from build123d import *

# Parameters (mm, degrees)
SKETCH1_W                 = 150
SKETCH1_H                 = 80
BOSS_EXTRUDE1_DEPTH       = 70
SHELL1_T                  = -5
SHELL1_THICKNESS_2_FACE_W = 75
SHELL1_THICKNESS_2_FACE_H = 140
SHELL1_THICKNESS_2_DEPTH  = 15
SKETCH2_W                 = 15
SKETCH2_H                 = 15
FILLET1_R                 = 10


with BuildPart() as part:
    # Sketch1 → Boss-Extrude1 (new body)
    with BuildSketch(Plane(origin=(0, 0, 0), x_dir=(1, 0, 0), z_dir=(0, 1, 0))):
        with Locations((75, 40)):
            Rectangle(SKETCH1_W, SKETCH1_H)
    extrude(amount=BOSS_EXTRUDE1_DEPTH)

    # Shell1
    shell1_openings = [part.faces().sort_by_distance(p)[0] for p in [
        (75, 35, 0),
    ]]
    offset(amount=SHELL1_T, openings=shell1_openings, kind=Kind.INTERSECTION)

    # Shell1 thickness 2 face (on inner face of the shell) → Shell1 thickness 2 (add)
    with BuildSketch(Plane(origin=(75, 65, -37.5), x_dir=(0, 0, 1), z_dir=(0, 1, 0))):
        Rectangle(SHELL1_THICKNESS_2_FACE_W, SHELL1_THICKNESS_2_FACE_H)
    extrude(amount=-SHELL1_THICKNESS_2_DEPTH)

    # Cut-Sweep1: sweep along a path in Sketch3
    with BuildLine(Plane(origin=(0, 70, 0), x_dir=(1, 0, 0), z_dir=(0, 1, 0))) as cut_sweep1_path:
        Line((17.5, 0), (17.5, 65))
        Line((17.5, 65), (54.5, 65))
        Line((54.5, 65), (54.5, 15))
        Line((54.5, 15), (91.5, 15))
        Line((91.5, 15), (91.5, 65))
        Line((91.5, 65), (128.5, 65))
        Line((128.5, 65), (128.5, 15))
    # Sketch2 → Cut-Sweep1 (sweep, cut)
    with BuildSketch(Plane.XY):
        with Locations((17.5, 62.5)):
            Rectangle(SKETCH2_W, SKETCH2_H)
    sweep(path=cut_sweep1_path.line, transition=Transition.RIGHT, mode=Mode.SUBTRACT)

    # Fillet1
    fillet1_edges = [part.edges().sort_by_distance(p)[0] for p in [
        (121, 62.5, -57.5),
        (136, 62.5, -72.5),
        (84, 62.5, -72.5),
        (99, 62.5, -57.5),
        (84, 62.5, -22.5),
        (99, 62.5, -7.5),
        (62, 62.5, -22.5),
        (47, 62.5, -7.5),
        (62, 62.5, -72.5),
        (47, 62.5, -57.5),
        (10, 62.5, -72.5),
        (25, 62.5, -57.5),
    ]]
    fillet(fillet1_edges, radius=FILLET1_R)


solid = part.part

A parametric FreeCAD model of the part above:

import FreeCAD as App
import Part
import Sketcher

V = App.Vector


def edges_at(feature, points):
    """Names of the edges that pass closest to the given points."""
    edges = feature.Shape.Edges
    near = lambda p: min(range(len(edges)), key=lambda i: edges[i].distToShape(Part.Vertex(*p))[0])
    return sorted({f"Edge{near(p) + 1}" for p in points})


def faces_at(feature, points):
    """Names of the faces that lie closest to the given points."""
    faces = feature.Shape.Faces
    near = lambda p: min(range(len(faces)), key=lambda i: faces[i].distToShape(Part.Vertex(*p))[0])
    return sorted({f"Face{near(p) + 1}" for p in points})

doc = App.newDocument("Part")
params = doc.addObject("Spreadsheet::Sheet", "Params")
for row, (alias, value) in enumerate([
    ("sketch1_width", "150 mm"),
    ("sketch1_height", "80 mm"),
    ("pad1_length", "70 mm"),
    ("thickness_wall", "5 mm"),
    ("sketch2_width", "140 mm"),
    ("sketch2_height", "75 mm"),
    ("pad2_length", "15 mm"),
    ("sketch3_width", "15 mm"),
    ("sketch4_width", "37 mm"),
    ("sketch4_height", "65 mm"),
    ("sketch4_height2", "50 mm"),
    ("fillet_radius", "10 mm"),
], start=1):
    params.set(f"A{row}", alias)
    params.set(f"B{row}", "=" + value)
    params.setAlias(f"B{row}", alias)

body = doc.addObject("PartDesign::Body", "Body")

# Sketch on XZ plane
sketch1 = body.newObject("Sketcher::SketchObject", "Sketch")
sketch1.AttachmentSupport = (doc.getObject("XZ_Plane"), [""])
sketch1.MapMode = "FlatFace"
sketch1.addGeometry([
    Part.LineSegment(V(0, -80, 0), V(0, 0, 0)),
    Part.LineSegment(V(0, 0, 0), V(150, 0, 0)),
    Part.LineSegment(V(150, 0, 0), V(150, -80, 0)),
    Part.LineSegment(V(150, -80, 0), V(0, -80, 0)),
], False)
sketch1.addConstraint([
    Sketcher.Constraint("Coincident", 0, 2, 1, 1),
    Sketcher.Constraint("Coincident", 1, 2, 2, 1),
    Sketcher.Constraint("Coincident", 2, 2, 3, 1),
    Sketcher.Constraint("Coincident", 3, 2, 0, 1),
    Sketcher.Constraint("Vertical", 0),
    Sketcher.Constraint("Horizontal", 1),
    Sketcher.Constraint("Vertical", 2),
    Sketcher.Constraint("Horizontal", 3),
    Sketcher.Constraint("Coincident", 0, 2, -1, 1),
    Sketcher.Constraint("DistanceX", 1, 1, 1, 2, 150.0),
    Sketcher.Constraint("DistanceY", 0, 1, 0, 2, 80.0),
])
sketch1.setExpression("Constraints[9]", "Params.sketch1_width")
sketch1.setExpression("Constraints[10]", "Params.sketch1_height")
pad1 = body.newObject("PartDesign::Pad", "Pad")
pad1.Profile = sketch1
pad1.setExpression("Length", "Params.pad1_length")
pad1.Reversed = True
doc.recompute()

thickness = body.newObject("PartDesign::Thickness", "Thickness")
thickness.Base = (pad1, faces_at(pad1, [(75, 35, 0)]))
thickness.setExpression("Value", "Params.thickness_wall")
thickness.Reversed = True
thickness.Join = "Intersection"

# Sketch on XZ plane
sketch2 = body.newObject("Sketcher::SketchObject", "Sketch001")
sketch2.AttachmentSupport = (doc.getObject("XZ_Plane"), [""])
sketch2.MapMode = "FlatFace"
sketch2.AttachmentOffset = App.Placement(V(0, 0, -65), App.Rotation())
sketch2.addGeometry([
    Part.LineSegment(V(145, -75, 0), V(5, -75, 0)),
    Part.LineSegment(V(5, -75, 0), V(5, 0, 0)),
    Part.LineSegment(V(5, 0, 0), V(145, 0, 0)),
    Part.LineSegment(V(145, 0, 0), V(145, -75, 0)),
], False)
sketch2.addConstraint([
    Sketcher.Constraint("Coincident", 0, 2, 1, 1),
    Sketcher.Constraint("Coincident", 1, 2, 2, 1),
    Sketcher.Constraint("Coincident", 2, 2, 3, 1),
    Sketcher.Constraint("Coincident", 3, 2, 0, 1),
    Sketcher.Constraint("Horizontal", 0),
    Sketcher.Constraint("Vertical", 1),
    Sketcher.Constraint("Horizontal", 2),
    Sketcher.Constraint("Vertical", 3),
    Sketcher.Constraint("PointOnObject", 1, 2, -1),
    Sketcher.Constraint("DistanceX", 0, 2, 0, 1, 140.0),
    Sketcher.Constraint("DistanceY", 1, 1, 1, 2, 75.0),
    Sketcher.Constraint("DistanceX", -1, 1, 0, 2, 5.0),
])
sketch2.setExpression("Constraints[9]", "Params.sketch2_width")
sketch2.setExpression("Constraints[10]", "Params.sketch2_height")
pad2 = body.newObject("PartDesign::Pad", "Pad001")
pad2.Profile = sketch2
pad2.setExpression("Length", "Params.pad2_length")

# Sketch on XY plane
sketch3 = body.newObject("Sketcher::SketchObject", "Sketch002")
sketch3.AttachmentSupport = (doc.getObject("XY_Plane"), [""])
sketch3.MapMode = "FlatFace"
sketch3.addGeometry([
    Part.LineSegment(V(10, 70, 0), V(10, 55, 0)),
    Part.LineSegment(V(10, 55, 0), V(25, 55, 0)),
    Part.LineSegment(V(25, 55, 0), V(25, 70, 0)),
    Part.LineSegment(V(25, 70, 0), V(10, 70, 0)),
], False)
sketch3.addConstraint([
    Sketcher.Constraint("Coincident", 0, 2, 1, 1),
    Sketcher.Constraint("Coincident", 1, 2, 2, 1),
    Sketcher.Constraint("Coincident", 2, 2, 3, 1),
    Sketcher.Constraint("Coincident", 3, 2, 0, 1),
    Sketcher.Constraint("Vertical", 0),
    Sketcher.Constraint("Horizontal", 1),
    Sketcher.Constraint("Vertical", 2),
    Sketcher.Constraint("Horizontal", 3),
    Sketcher.Constraint("Equal", 3, 0),
    Sketcher.Constraint("DistanceX", 1, 1, 1, 2, 15.0),
    Sketcher.Constraint("DistanceX", -1, 1, 0, 2, 10.0),
    Sketcher.Constraint("DistanceY", -1, 1, 0, 2, 55.0),
])
sketch3.setExpression("Constraints[9]", "Params.sketch3_width")

# Sketch on XZ plane
sketch4 = body.newObject("Sketcher::SketchObject", "Sketch003")
sketch4.AttachmentSupport = (doc.getObject("XZ_Plane"), [""])
sketch4.MapMode = "FlatFace"
sketch4.AttachmentOffset = App.Placement(V(0, 0, -70), App.Rotation())
sketch4.addGeometry([
    Part.LineSegment(V(18, 0, 0), V(18, -65, 0)),  # 0
    Part.LineSegment(V(18, -65, 0), V(54, -65, 0)),  # 1
    Part.LineSegment(V(54, -65, 0), V(54, -15, 0)),  # 2
    Part.LineSegment(V(54, -15, 0), V(92, -15, 0)),  # 3
    Part.LineSegment(V(92, -15, 0), V(92, -65, 0)),  # 4
    Part.LineSegment(V(92, -65, 0), V(128, -65, 0)),  # 5
    Part.LineSegment(V(128, -65, 0), V(128, -15, 0)),  # 6
], False)
sketch4.addConstraint([
    Sketcher.Constraint("Coincident", 0, 2, 1, 1),
    Sketcher.Constraint("Coincident", 1, 2, 2, 1),
    Sketcher.Constraint("Coincident", 2, 2, 3, 1),
    Sketcher.Constraint("Coincident", 3, 2, 4, 1),
    Sketcher.Constraint("Coincident", 4, 2, 5, 1),
    Sketcher.Constraint("Coincident", 5, 2, 6, 1),
    Sketcher.Constraint("Vertical", 0),
    Sketcher.Constraint("Horizontal", 1),
    Sketcher.Constraint("Vertical", 2),
    Sketcher.Constraint("Horizontal", 3),
    Sketcher.Constraint("Vertical", 4),
    Sketcher.Constraint("Horizontal", 5),
    Sketcher.Constraint("Vertical", 6),
    Sketcher.Constraint("PointOnObject", 0, 1, -1),
    Sketcher.Constraint("Horizontal", 1, 2, 4, 2),
    Sketcher.Constraint("Horizontal", 3, 2, 6, 2),
    Sketcher.Constraint("Equal", 1, 3),
    Sketcher.Constraint("Equal", 3, 5),
    Sketcher.Constraint("DistanceX", 1, 1, 1, 2, 37.0),
    Sketcher.Constraint("DistanceY", 0, 2, 0, 1, 65.0),
    Sketcher.Constraint("DistanceY", 2, 1, 2, 2, 50.0),
    Sketcher.Constraint("DistanceX", -1, 1, 0, 1, 17.5),
])
sketch4.setExpression("Constraints[18]", "Params.sketch4_width")
sketch4.setExpression("Constraints[19]", "Params.sketch4_height")
sketch4.setExpression("Constraints[20]", "Params.sketch4_height2")
doc.recompute()

subtractivepipe = body.newObject("PartDesign::SubtractivePipe", "SubtractivePipe")
subtractivepipe.Profile = sketch3
subtractivepipe.Spine = (sketch4, ["Edge1", "Edge2", "Edge3", "Edge4", "Edge5", "Edge6", "Edge7"])
subtractivepipe.Transition = "Right corner"
doc.recompute()

fillet = body.newObject("PartDesign::Fillet", "Fillet")
fillet.Base = (subtractivepipe, edges_at(subtractivepipe, [
    (121, 62.5, -57.5),
    (136, 62.5, -72.5),
    (84, 62.5, -72.5),
    (99, 62.5, -57.5),
    (84, 62.5, -22.5),
    (99, 62.5, -7.5),
    (62, 62.5, -22.5),
    (47, 62.5, -7.5),
    (62, 62.5, -72.5),
    (47, 62.5, -57.5),
    (10, 62.5, -72.5),
    (25, 62.5, -57.5),
]))
fillet.setExpression("Radius", "Params.fillet_radius")

doc.recompute()
